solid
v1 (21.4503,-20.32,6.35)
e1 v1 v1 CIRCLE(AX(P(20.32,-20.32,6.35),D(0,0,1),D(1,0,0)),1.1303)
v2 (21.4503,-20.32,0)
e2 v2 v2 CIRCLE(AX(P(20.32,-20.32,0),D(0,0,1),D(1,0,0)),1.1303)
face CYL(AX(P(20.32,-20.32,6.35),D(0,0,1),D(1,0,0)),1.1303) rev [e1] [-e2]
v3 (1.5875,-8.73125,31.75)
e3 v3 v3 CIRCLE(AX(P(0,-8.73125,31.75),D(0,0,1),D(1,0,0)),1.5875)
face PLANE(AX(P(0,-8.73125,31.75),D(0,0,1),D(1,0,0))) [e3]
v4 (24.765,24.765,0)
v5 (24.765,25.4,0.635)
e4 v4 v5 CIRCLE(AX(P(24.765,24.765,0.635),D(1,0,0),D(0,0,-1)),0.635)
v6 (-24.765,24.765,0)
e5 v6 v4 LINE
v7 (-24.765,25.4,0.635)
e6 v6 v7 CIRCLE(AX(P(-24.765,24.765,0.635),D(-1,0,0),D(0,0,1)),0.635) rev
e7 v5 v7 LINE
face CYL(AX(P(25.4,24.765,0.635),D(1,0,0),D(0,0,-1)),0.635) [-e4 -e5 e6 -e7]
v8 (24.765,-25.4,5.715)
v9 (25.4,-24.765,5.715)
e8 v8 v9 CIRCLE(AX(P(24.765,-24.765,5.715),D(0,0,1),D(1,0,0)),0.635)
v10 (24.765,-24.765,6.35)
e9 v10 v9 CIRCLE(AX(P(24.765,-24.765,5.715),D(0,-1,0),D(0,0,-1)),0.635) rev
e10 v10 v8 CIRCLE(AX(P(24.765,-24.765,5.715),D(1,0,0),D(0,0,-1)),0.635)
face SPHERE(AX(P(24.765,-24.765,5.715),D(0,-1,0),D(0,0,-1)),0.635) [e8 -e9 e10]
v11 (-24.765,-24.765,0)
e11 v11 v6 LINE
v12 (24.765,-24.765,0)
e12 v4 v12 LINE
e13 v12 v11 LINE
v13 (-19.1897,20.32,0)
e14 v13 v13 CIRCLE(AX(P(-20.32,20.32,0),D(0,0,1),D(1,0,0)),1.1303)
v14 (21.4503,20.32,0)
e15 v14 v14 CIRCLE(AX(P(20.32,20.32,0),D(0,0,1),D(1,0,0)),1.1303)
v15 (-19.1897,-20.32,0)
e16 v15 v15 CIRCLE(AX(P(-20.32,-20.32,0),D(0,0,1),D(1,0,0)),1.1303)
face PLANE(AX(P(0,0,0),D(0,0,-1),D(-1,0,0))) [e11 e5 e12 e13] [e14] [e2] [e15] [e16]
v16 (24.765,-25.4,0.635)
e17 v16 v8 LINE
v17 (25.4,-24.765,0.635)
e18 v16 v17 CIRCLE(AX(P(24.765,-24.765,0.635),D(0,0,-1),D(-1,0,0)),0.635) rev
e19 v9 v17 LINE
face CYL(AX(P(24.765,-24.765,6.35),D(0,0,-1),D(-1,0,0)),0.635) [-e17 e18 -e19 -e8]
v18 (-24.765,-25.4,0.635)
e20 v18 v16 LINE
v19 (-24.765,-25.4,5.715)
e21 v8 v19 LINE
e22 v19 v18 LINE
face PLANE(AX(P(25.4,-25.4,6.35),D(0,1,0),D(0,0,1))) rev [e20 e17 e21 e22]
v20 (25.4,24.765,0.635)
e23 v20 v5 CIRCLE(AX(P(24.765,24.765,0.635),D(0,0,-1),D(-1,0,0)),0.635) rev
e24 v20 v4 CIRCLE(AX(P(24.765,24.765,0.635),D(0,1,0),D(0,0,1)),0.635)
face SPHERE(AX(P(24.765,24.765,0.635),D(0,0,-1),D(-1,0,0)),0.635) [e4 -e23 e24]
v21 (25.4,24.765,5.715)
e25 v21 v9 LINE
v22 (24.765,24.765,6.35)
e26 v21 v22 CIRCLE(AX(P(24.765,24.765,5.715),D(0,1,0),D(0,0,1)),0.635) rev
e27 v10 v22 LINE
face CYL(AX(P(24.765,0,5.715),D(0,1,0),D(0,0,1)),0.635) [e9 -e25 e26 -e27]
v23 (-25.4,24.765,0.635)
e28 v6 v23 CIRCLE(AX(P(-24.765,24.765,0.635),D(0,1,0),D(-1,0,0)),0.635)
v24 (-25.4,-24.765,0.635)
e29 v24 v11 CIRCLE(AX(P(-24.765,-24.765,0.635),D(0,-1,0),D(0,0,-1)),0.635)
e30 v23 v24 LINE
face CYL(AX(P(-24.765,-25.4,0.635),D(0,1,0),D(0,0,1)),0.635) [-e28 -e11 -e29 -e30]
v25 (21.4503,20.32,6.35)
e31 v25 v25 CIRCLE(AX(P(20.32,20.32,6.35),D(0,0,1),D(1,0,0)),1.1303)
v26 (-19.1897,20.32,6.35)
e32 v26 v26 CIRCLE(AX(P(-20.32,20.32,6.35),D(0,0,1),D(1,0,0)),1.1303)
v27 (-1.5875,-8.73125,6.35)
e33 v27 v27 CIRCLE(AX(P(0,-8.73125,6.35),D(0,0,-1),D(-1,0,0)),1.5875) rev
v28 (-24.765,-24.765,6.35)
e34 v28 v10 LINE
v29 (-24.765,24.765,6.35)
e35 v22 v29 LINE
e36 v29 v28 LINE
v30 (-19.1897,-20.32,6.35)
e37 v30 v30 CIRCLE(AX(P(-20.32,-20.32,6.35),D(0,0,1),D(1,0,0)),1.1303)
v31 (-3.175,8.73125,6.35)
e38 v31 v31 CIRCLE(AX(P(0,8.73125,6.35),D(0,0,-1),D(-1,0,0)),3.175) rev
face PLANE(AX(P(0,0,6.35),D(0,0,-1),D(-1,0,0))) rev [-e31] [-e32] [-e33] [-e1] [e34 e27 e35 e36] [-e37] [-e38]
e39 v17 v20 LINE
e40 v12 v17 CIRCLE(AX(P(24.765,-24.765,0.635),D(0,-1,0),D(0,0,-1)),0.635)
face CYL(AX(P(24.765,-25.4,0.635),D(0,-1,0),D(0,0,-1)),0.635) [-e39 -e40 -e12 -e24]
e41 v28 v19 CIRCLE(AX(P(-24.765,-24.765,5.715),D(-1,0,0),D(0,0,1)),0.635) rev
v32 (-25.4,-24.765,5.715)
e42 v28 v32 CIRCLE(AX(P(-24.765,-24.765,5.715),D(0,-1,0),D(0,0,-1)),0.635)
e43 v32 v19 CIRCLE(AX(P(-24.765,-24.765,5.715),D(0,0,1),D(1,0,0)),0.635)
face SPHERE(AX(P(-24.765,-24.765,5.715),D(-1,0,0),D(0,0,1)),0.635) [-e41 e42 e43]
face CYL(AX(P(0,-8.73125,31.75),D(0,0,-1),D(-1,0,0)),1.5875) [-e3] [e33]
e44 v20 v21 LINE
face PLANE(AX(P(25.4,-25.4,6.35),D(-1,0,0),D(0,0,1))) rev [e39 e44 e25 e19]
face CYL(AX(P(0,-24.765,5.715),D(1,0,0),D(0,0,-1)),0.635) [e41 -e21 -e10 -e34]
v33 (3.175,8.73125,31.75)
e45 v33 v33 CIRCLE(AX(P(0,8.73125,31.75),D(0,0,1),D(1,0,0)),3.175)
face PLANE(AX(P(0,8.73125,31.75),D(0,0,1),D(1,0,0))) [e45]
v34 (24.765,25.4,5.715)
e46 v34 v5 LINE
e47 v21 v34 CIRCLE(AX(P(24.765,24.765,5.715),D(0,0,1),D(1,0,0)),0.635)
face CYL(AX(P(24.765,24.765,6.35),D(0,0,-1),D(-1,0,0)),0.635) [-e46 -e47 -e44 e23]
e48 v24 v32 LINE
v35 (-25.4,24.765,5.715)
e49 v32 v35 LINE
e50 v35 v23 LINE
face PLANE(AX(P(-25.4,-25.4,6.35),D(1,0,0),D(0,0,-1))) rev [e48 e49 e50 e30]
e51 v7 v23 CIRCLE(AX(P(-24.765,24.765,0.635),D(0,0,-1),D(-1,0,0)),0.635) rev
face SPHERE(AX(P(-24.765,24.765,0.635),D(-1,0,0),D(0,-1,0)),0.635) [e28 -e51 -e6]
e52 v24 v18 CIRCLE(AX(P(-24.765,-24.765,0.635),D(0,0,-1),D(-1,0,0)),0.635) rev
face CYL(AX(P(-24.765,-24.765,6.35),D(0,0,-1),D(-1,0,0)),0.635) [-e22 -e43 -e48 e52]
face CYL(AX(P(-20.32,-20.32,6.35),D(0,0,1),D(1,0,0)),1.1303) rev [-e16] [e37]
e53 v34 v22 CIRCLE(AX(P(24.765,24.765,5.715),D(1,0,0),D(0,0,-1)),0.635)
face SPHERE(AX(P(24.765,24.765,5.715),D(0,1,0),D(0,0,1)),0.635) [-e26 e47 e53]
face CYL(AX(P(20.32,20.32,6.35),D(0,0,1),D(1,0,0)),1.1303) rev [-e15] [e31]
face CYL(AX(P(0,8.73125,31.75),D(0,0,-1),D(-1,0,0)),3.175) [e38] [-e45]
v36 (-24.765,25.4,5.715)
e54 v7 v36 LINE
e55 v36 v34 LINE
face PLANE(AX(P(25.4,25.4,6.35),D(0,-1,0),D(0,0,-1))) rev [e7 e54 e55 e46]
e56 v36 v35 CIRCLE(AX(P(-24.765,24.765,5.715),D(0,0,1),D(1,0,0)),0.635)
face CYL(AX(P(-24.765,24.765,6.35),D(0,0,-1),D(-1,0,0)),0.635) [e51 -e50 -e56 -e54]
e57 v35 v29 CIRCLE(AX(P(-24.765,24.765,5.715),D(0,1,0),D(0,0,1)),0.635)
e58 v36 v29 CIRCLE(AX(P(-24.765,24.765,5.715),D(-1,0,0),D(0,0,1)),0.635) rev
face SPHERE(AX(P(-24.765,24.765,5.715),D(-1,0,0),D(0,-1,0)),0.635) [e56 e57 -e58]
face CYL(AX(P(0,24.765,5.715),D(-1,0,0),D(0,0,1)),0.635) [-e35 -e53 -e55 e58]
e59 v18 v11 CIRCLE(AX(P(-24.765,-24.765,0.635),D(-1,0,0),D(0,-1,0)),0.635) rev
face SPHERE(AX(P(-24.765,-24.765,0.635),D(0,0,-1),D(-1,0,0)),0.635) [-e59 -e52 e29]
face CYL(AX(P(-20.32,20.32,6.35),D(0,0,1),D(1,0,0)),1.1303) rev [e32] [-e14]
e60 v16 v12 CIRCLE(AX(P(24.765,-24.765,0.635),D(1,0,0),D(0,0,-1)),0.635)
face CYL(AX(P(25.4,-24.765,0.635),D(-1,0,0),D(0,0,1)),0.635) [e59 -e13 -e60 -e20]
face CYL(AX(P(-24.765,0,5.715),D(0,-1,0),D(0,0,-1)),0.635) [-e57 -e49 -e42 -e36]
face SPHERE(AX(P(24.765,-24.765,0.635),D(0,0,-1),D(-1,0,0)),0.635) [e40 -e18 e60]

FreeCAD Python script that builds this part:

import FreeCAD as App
import Part
import Sketcher

V = App.Vector
Q = App.Units.Quantity


def edges_at(feature, points):
    """Names of the edges that pass closest to the given points."""
    edges = feature.Shape.Edges
    near = lambda p: min(range(len(edges)), key=lambda i: edges[i].distToShape(Part.Vertex(*p))[0])
    return sorted({f"Edge{near(p) + 1}" for p in points})

doc = App.newDocument("Part")
body = doc.addObject("PartDesign::Body", "Body")

sketch1 = body.newObject("Sketcher::SketchObject", "Sketch")
sketch1.AttachmentSupport = (doc.getObject("XY_Plane"), [""])
sketch1.MapMode = "FlatFace"
sketch1.addGeometry([
    Part.LineSegment(V(-25, -25, 0), V(25, -25, 0)),
    Part.LineSegment(V(25, -25, 0), V(25, 25, 0)),
    Part.LineSegment(V(25, 25, 0), V(-25, 25, 0)),
    Part.LineSegment(V(-25, 25, 0), V(-25, -25, 0)),
], False)
sketch1.addConstraint([
    Sketcher.Constraint("Coincident", 0, 2, 1, 1),
    Sketcher.Constraint("Coincident", 1, 2, 2, 1),
    Sketcher.Constraint("Coincident", 2, 2, 3, 1),
    Sketcher.Constraint("Coincident", 3, 2, 0, 1),
    Sketcher.Constraint("Horizontal", 0),
    Sketcher.Constraint("Vertical", 1),
    Sketcher.Constraint("Horizontal", 2),
    Sketcher.Constraint("Vertical", 3),
    Sketcher.Constraint("Symmetric", 0, 2, 2, 2, -1, 1),
    Sketcher.Constraint("Equal", 2, 1),
    Sketcher.Constraint("DistanceX", 0, 1, 0, 2, Q("2 in")),
])
pad1 = body.newObject("PartDesign::Pad", "Pad")
pad1.Profile = sketch1
pad1.Length = Q("0.25 in")

sketch2 = body.newObject("Sketcher::SketchObject", "Sketch001")
sketch2.AttachmentSupport = (doc.getObject("XY_Plane"), [""])
sketch2.MapMode = "FlatFace"
sketch2.AttachmentOffset = App.Placement(V(0, 0, 0.25 * 25.4), App.Rotation())
sketch2.addGeometry([
    Part.Circle(V(0, -8.7, 0), V(0, 0, 1), 1.6),
    Part.Circle(V(0, 8.7, 0), V(0, 0, 1), 3.2),
], False)
sketch2.addConstraint([
    Sketcher.Constraint("Symmetric", 0, 3, 1, 3, -1, 1),
    Sketcher.Constraint("PointOnObject", 0, 3, -2),
    Sketcher.Constraint("Diameter", 1, Q("0.25 in")),
    Sketcher.Constraint("Diameter", 0, Q("0.125 in")),
    Sketcher.Constraint("DistanceY", 0, 3, -1, 1, Q("0.34375 in")),
])
pad2 = body.newObject("PartDesign::Pad", "Pad001")
pad2.Profile = sketch2
pad2.Length = Q("1 in")

sketch3 = body.newObject("Sketcher::SketchObject", "Sketch002")
sketch3.AttachmentSupport = (doc.getObject("XY_Plane"), [""])
sketch3.MapMode = "FlatFace"
sketch3.AttachmentOffset = App.Placement(V(0, 0, 0.25 * 25.4), App.Rotation())
sketch3.addGeometry([
    Part.Circle(V(-20.3, -20.3, 0), V(0, 0, 1), 1.1),
    Part.Circle(V(-20.3, 20.3, 0), V(0, 0, 1), 1.1),
    Part.Circle(V(20.3, 20.3, 0), V(0, 0, 1), 1.1),
    Part.Circle(V(20.3, -20.3, 0), V(0, 0, 1), 1.1),
], False)
sketch3.addConstraint([
    Sketcher.Constraint("Equal", 0, 1),
    Sketcher.Constraint("Equal", 1, 2),
    Sketcher.Constraint("Equal", 2, 3),
    Sketcher.Constraint("Symmetric", 0, 3, 2, 3, -1, 1),
    Sketcher.Constraint("Symmetric", 1, 3, 3, 3, -1, 1),
    Sketcher.Constraint("Symmetric", 1, 3, 2, 3, -2),
    Sketcher.Constraint("Diameter", 0, Q("0.089 in")),
    Sketcher.Constraint("DistanceX", 0, 3, -1, 1, Q("0.8 in")),
    Sketcher.Constraint("DistanceY", 0, 3, -1, 1, Q("0.8 in")),
])
doc.recompute()
hole = body.newObject("PartDesign::Hole", "Hole")
hole.Profile = sketch3
hole.ThreadType = "None"
hole.Diameter = Q("0.089 in")
hole.DepthType = "ThroughAll"
doc.recompute()

fillet = body.newObject("PartDesign::Fillet", "Fillet")
fillet.Base = (hole, edges_at(hole, [
    (0, -25.4, 6.35),
    (25.4, 0, 6.35),
    (0, 25.4, 6.35),
    (25.4, 0, 0),
    (0, -25.4, 0),
    (-25.4, 0, 0),
    (0, 25.4, 0),
    (25.4, 25.4, 3.175),
    (25.4, -25.4, 3.175),
    (-25.4, -25.4, 3.175),
    (-25.4, 25.4, 3.175),
    (-25.4, 0, 6.35),
]))
fillet.Radius = Q("0.025 in")

doc.recompute()
